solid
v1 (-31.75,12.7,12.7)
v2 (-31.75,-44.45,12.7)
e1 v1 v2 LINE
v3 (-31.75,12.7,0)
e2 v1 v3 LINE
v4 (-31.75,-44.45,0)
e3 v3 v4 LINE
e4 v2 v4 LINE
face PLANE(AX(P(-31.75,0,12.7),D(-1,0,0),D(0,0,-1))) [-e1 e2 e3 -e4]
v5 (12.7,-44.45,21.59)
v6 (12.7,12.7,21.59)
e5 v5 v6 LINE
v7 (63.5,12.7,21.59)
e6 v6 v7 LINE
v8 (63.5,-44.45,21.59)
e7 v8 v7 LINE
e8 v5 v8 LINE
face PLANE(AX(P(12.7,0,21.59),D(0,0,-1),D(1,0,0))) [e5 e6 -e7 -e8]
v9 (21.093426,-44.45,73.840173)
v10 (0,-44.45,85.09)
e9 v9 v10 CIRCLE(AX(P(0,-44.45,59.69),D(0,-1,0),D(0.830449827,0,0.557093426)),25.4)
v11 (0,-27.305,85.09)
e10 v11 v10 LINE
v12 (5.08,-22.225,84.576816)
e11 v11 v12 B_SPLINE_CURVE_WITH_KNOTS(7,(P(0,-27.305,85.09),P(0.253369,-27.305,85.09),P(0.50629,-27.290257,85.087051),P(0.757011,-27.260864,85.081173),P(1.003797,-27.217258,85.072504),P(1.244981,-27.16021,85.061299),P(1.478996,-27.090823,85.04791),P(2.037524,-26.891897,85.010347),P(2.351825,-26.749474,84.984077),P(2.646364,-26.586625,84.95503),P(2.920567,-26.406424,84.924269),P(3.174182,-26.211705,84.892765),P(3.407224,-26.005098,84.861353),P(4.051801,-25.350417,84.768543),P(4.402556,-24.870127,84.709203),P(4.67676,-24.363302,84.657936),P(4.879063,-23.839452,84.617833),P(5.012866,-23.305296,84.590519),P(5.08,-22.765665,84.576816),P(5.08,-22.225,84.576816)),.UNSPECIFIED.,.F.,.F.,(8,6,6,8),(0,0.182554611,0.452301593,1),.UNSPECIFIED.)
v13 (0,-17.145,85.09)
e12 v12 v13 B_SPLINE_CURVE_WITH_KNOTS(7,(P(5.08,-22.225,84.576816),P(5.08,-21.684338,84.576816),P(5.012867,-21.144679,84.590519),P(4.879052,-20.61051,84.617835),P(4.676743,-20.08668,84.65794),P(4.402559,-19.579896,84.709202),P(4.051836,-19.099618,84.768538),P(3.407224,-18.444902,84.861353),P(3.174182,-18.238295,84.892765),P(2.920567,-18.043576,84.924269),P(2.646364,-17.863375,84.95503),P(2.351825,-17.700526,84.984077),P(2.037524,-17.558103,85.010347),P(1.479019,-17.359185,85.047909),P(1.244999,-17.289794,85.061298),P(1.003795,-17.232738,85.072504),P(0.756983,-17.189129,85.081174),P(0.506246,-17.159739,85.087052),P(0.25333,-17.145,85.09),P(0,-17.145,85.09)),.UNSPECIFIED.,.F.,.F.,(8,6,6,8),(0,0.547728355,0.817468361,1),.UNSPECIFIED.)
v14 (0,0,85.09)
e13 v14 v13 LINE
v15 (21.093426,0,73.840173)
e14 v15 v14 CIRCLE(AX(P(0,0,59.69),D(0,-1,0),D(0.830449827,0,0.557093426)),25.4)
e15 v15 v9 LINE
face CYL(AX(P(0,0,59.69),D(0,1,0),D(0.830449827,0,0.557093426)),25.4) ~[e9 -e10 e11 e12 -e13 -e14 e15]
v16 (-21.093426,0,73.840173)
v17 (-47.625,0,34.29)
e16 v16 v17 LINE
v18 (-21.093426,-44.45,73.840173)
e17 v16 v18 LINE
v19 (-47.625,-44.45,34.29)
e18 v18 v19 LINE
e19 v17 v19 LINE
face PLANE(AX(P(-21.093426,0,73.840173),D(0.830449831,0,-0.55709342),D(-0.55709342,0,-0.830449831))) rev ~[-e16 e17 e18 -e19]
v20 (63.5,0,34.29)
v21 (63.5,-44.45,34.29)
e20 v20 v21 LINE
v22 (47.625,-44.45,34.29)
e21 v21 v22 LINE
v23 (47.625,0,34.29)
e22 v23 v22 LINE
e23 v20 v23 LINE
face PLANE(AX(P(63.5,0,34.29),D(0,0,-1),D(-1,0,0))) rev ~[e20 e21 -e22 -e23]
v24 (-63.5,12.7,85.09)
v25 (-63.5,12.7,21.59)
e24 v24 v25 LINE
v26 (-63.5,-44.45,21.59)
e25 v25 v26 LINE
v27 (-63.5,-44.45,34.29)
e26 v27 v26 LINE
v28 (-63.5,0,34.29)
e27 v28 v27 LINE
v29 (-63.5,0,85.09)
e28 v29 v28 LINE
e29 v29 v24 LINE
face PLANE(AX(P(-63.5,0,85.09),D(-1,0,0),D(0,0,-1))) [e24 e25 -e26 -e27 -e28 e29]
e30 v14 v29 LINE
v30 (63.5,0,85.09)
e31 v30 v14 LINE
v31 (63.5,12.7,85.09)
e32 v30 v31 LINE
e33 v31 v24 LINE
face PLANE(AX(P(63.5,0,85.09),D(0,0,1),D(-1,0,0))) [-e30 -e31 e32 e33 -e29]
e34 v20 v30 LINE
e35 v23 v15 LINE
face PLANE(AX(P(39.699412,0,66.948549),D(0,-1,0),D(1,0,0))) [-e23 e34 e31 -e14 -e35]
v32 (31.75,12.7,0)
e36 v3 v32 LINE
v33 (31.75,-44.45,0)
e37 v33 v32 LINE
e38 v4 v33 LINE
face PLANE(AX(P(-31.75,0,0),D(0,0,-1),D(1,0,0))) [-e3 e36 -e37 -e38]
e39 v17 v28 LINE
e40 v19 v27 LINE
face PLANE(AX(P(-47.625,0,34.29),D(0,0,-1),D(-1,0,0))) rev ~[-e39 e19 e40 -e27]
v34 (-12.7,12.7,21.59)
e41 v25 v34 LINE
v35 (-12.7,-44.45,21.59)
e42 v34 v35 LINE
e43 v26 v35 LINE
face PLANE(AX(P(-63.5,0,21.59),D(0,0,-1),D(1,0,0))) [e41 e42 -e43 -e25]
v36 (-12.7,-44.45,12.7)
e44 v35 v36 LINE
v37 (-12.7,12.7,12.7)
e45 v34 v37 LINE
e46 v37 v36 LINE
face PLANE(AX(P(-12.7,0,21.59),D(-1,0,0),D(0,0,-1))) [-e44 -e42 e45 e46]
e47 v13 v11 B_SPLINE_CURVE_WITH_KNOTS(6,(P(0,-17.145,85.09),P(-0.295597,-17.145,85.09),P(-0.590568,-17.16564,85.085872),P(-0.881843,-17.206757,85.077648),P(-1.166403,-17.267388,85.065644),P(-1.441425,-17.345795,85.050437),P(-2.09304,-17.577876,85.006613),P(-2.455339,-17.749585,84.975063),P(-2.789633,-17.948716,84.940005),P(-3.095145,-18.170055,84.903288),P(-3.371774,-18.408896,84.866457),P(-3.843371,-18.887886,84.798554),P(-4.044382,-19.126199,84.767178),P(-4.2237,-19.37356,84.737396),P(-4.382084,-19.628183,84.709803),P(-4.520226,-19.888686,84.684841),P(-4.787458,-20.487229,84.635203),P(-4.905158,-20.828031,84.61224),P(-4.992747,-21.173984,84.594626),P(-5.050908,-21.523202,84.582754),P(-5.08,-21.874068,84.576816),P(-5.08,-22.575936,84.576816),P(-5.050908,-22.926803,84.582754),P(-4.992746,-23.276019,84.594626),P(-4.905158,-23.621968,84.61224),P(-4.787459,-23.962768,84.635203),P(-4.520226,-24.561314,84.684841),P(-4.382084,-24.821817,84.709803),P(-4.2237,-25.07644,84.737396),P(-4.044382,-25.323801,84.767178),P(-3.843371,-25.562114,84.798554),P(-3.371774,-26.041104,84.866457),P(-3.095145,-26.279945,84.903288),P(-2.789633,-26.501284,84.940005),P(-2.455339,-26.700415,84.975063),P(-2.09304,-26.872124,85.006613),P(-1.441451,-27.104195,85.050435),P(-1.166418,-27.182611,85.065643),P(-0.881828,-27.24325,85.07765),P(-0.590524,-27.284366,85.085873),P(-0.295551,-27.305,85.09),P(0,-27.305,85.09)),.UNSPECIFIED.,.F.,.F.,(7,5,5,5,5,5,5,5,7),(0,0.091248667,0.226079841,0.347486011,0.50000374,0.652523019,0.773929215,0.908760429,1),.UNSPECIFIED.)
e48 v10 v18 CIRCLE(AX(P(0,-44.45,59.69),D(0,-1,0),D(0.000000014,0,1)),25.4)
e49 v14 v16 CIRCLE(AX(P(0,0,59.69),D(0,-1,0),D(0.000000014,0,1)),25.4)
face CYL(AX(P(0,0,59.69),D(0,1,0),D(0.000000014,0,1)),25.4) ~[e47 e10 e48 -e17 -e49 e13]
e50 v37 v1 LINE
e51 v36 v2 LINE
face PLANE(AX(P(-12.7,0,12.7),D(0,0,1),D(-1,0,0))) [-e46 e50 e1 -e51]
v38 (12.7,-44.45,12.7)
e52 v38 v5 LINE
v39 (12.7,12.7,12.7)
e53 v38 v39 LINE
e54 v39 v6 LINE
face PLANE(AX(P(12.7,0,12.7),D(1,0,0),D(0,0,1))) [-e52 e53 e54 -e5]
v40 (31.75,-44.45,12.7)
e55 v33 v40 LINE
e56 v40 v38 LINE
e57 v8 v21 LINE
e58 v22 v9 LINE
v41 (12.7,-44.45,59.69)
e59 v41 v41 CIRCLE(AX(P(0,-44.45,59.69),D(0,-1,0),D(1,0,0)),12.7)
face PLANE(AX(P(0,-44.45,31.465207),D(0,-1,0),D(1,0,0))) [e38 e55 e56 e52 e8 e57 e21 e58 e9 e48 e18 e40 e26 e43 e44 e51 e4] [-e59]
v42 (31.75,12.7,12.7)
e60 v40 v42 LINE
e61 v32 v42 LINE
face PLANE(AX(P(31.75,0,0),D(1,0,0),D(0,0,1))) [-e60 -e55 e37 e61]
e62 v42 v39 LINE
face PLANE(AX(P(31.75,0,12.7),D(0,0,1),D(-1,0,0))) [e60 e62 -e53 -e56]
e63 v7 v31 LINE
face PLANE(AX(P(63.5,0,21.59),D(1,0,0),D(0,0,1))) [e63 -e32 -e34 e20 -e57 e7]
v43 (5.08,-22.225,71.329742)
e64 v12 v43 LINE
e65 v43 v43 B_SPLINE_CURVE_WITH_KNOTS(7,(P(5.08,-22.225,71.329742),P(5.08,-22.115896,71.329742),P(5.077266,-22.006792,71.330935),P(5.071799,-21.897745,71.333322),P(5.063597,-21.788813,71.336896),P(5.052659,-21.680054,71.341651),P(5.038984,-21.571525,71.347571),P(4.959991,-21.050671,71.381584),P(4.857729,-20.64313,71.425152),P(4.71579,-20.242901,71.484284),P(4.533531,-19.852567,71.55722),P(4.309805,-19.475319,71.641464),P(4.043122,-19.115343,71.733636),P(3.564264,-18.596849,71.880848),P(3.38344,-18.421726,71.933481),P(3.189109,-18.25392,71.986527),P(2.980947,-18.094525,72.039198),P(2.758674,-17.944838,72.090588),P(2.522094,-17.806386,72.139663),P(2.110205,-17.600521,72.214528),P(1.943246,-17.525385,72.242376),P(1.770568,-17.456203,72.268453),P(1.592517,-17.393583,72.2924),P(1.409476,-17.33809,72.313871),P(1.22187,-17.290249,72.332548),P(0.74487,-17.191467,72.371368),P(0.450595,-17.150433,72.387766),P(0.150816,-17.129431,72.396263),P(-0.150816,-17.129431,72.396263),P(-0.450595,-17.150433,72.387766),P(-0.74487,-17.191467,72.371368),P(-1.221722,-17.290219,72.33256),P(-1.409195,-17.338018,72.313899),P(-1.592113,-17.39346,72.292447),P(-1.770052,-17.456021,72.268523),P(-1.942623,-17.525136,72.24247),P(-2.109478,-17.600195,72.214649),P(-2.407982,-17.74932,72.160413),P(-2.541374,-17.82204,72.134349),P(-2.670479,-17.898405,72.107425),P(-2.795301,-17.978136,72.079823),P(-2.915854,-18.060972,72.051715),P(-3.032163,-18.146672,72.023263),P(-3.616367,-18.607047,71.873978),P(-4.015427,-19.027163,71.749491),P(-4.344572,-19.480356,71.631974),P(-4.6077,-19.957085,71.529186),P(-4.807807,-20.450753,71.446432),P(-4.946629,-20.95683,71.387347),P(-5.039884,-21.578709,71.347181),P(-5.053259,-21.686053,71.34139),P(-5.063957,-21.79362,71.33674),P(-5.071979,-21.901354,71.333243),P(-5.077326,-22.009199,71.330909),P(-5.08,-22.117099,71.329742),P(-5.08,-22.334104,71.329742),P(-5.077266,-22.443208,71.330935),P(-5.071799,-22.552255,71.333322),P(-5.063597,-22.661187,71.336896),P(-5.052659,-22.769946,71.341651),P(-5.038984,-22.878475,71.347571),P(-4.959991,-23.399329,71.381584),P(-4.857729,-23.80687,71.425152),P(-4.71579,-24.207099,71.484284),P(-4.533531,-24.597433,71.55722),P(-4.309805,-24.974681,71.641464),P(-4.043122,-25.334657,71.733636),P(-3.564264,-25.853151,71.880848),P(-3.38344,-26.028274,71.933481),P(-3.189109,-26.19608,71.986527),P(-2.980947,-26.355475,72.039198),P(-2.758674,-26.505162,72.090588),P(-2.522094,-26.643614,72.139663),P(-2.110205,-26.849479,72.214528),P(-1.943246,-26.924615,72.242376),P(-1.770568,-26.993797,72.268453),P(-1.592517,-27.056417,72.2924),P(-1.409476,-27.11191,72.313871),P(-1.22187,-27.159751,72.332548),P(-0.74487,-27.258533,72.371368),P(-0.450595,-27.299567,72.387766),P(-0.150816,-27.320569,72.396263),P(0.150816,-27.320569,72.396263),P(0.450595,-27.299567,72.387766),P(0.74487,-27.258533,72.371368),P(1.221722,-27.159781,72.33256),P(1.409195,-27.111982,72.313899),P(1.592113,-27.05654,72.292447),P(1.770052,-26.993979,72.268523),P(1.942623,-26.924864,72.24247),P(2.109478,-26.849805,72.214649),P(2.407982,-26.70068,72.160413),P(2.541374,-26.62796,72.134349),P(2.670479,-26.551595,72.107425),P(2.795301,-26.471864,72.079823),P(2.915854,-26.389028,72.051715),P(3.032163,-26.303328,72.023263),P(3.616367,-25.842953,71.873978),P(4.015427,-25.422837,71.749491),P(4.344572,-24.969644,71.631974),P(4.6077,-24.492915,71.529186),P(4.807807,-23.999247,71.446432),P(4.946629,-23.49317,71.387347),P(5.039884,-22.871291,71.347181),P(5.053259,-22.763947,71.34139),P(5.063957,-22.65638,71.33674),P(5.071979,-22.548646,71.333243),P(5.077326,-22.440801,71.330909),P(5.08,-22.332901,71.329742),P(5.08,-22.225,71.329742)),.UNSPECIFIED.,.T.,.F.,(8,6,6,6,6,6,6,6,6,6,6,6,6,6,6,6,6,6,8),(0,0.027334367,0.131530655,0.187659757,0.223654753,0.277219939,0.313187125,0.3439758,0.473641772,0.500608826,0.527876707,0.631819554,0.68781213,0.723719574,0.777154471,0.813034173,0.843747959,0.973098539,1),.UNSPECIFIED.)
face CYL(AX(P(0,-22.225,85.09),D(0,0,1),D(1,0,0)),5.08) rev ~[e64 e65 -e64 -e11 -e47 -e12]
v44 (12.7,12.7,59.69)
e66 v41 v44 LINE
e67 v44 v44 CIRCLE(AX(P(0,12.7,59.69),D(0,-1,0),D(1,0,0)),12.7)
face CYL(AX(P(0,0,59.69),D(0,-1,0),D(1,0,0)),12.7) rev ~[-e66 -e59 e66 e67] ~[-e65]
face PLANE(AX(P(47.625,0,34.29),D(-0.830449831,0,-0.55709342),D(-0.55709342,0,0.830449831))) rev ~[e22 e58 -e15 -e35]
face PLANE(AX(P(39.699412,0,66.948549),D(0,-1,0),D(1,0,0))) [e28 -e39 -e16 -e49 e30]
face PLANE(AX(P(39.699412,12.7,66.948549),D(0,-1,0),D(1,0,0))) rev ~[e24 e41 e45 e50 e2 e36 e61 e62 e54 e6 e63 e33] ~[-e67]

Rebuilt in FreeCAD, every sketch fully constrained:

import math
import FreeCAD as App
import Part
import Sketcher
from FreeCAD import Vector
Q = App.Units.Quantity

doc = App.newDocument("Part")
body = doc.addObject("PartDesign::Body", "Body")

# Sketch on XZ plane
sketch1 = body.newObject("Sketcher::SketchObject", "Sketch")
sketch1.AttachmentSupport = (doc.getObject("XZ_Plane"), [""])
sketch1.MapMode = "FlatFace"
sketch1.addGeometry([
    Part.LineSegment(Vector(-32, 13, 0), Vector(-32, 0, 0)),  # 0
    Part.LineSegment(Vector(-32, 0, 0), Vector(32, 0, 0)),  # 1
    Part.LineSegment(Vector(32, 0, 0), Vector(32, 13, 0)),  # 2
    Part.LineSegment(Vector(32, 13, 0), Vector(13, 13, 0)),  # 3
    Part.LineSegment(Vector(13, 13, 0), Vector(13, 22, 0)),  # 4
    Part.LineSegment(Vector(13, 22, 0), Vector(64, 22, 0)),  # 5
    Part.LineSegment(Vector(64, 22, 0), Vector(64, 34, 0)),  # 6
    Part.LineSegment(Vector(64, 34, 0), Vector(48, 34, 0)),  # 7
    Part.LineSegment(Vector(48, 34, 0), Vector(21, 74, 0)),  # 8
    Part.ArcOfCircle(Part.Circle(Vector(0, 60, 0), Vector(0, 0, 1), 25), math.radians(34), math.radians(90)),  # 9
    Part.ArcOfCircle(Part.Circle(Vector(0, 60, 0), Vector(0, 0, 1), 25), math.radians(90), math.radians(146)),  # 10
    Part.LineSegment(Vector(-21, 74, 0), Vector(-48, 34, 0)),  # 11
    Part.LineSegment(Vector(-48, 34, 0), Vector(-64, 34, 0)),  # 12
    Part.LineSegment(Vector(-64, 34, 0), Vector(-64, 22, 0)),  # 13
    Part.LineSegment(Vector(-64, 22, 0), Vector(-13, 22, 0)),  # 14
    Part.LineSegment(Vector(-13, 22, 0), Vector(-13, 13, 0)),  # 15
    Part.LineSegment(Vector(-13, 13, 0), Vector(-32, 13, 0)),  # 16
    Part.Circle(Vector(0, 60, 0), Vector(0, 0, 1), 13),  # 17
], False)
sketch1.addConstraint([
    Sketcher.Constraint("Coincident", 0, 2, 1, 1),
    Sketcher.Constraint("Coincident", 1, 2, 2, 1),
    Sketcher.Constraint("Coincident", 2, 2, 3, 1),
    Sketcher.Constraint("Coincident", 3, 2, 4, 1),
    Sketcher.Constraint("Coincident", 4, 2, 5, 1),
    Sketcher.Constraint("Coincident", 5, 2, 6, 1),
    Sketcher.Constraint("Coincident", 6, 2, 7, 1),
    Sketcher.Constraint("Coincident", 7, 2, 8, 1),
    Sketcher.Constraint("Tangent", 8, 2, 9, 1),
    Sketcher.Constraint("Tangent", 9, 2, 10, 1),
    Sketcher.Constraint("Tangent", 10, 2, 11, 1),
    Sketcher.Constraint("Coincident", 11, 2, 12, 1),
    Sketcher.Constraint("Coincident", 12, 2, 13, 1),
    Sketcher.Constraint("Coincident", 13, 2, 14, 1),
    Sketcher.Constraint("Coincident", 14, 2, 15, 1),
    Sketcher.Constraint("Coincident", 15, 2, 16, 1),
    Sketcher.Constraint("Coincident", 16, 2, 0, 1),
    Sketcher.Constraint("Vertical", 0),
    Sketcher.Constraint("Horizontal", 1),
    Sketcher.Constraint("Vertical", 2),
    Sketcher.Constraint("Horizontal", 3),
    Sketcher.Constraint("Vertical", 4),
    Sketcher.Constraint("Horizontal", 5),
    Sketcher.Constraint("Vertical", 6),
    Sketcher.Constraint("Horizontal", 7),
    Sketcher.Constraint("Horizontal", 12),
    Sketcher.Constraint("Vertical", 13),
    Sketcher.Constraint("Horizontal", 14),
    Sketcher.Constraint("Vertical", 15),
    Sketcher.Constraint("Horizontal", 16),
    Sketcher.Constraint("Coincident", 17, 3, 9, 3),
    Sketcher.Constraint("Equal", 9, 10),
    Sketcher.Constraint("Symmetric", 0, 2, 1, 2, -1, 1),
    Sketcher.Constraint("Symmetric", 8, 2, 10, 2, -2),
    Sketcher.Constraint("Symmetric", 6, 2, 12, 2, -2),
    Sketcher.Constraint("Symmetric", 4, 2, 14, 2, -2),
    Sketcher.Constraint("PointOnObject", 9, 2, -2),
    Sketcher.Constraint("Horizontal", 3, 2, 15, 2),
    Sketcher.Constraint("Equal", 2, 6),
    Sketcher.Constraint("Diameter", 17, Q("1 in")),
    Sketcher.Constraint("Radius", 9, Q("1 in")),
    Sketcher.Constraint("DistanceX", 5, 1, 5, 2, Q("2 in")),
    Sketcher.Constraint("DistanceX", 1, 1, 1, 2, Q("2.5 in")),
    Sketcher.Constraint("DistanceY", 0, 2, 0, 1, Q("0.5 in")),
    Sketcher.Constraint("DistanceY", 11, 2, 10, 3, Q("1 in")),
    Sketcher.Constraint("DistanceX", 14, 2, 4, 2, Q("1 in")),
    Sketcher.Constraint("DistanceY", 4, 1, 4, 2, Q("0.35 in")),
    Sketcher.Constraint("DistanceX", 7, 2, 7, 1, Q("0.625 in")),
])
pad1 = body.newObject("PartDesign::Pad", "Pad")
pad1.Profile = sketch1
pad1.Length = Q("1.75 in")

# Sketch on XZ plane
sketch2 = body.newObject("Sketcher::SketchObject", "Sketch001")
sketch2.AttachmentSupport = (doc.getObject("XZ_Plane"), [""])
sketch2.MapMode = "FlatFace"
sketch2.addGeometry([
    Part.LineSegment(Vector(64, 85, 0), Vector(-64, 85, 0)),  # 0
    Part.LineSegment(Vector(-64, 85, 0), Vector(-64, 22, 0)),  # 1
    Part.LineSegment(Vector(-64, 22, 0), Vector(-13, 22, 0)),  # 2
    Part.LineSegment(Vector(-13, 22, 0), Vector(-13, 13, 0)),  # 3
    Part.LineSegment(Vector(-13, 13, 0), Vector(-32, 13, 0)),  # 4
    Part.LineSegment(Vector(-32, 13, 0), Vector(-32, 0, 0)),  # 5
    Part.LineSegment(Vector(-32, 0, 0), Vector(32, 0, 0)),  # 6
    Part.LineSegment(Vector(32, 0, 0), Vector(32, 13, 0)),  # 7
    Part.LineSegment(Vector(32, 13, 0), Vector(13, 13, 0)),  # 8
    Part.LineSegment(Vector(13, 13, 0), Vector(13, 22, 0)),  # 9
    Part.LineSegment(Vector(13, 22, 0), Vector(64, 22, 0)),  # 10
    Part.LineSegment(Vector(64, 22, 0), Vector(64, 85, 0)),  # 11
    Part.Circle(Vector(0, 60, 0), Vector(0, 0, 1), 13),  # 12
], False)
sketch2.addConstraint([
    Sketcher.Constraint("Coincident", 0, 2, 1, 1),
    Sketcher.Constraint("Coincident", 1, 2, 2, 1),
    Sketcher.Constraint("Coincident", 2, 2, 3, 1),
    Sketcher.Constraint("Coincident", 3, 2, 4, 1),
    Sketcher.Constraint("Coincident", 4, 2, 5, 1),
    Sketcher.Constraint("Coincident", 5, 2, 6, 1),
    Sketcher.Constraint("Coincident", 6, 2, 7, 1),
    Sketcher.Constraint("Coincident", 7, 2, 8, 1),
    Sketcher.Constraint("Coincident", 8, 2, 9, 1),
    Sketcher.Constraint("Coincident", 9, 2, 10, 1),
    Sketcher.Constraint("Coincident", 10, 2, 11, 1),
    Sketcher.Constraint("Coincident", 11, 2, 0, 1),
    Sketcher.Constraint("Horizontal", 0),
    Sketcher.Constraint("Vertical", 1),
    Sketcher.Constraint("Horizontal", 2),
    Sketcher.Constraint("Vertical", 3),
    Sketcher.Constraint("Horizontal", 4),
    Sketcher.Constraint("Vertical", 5),
    Sketcher.Constraint("Horizontal", 6),
    Sketcher.Constraint("Vertical", 7),
    Sketcher.Constraint("Horizontal", 8),
    Sketcher.Constraint("Vertical", 9),
    Sketcher.Constraint("Horizontal", 10),
    Sketcher.Constraint("Vertical", 11),
    Sketcher.Constraint("Symmetric", 5, 2, 6, 2, -1, 1),
    Sketcher.Constraint("Symmetric", 3, 2, 8, 2, -2),
    Sketcher.Constraint("Symmetric", 1, 2, 10, 2, -2),
    Sketcher.Constraint("PointOnObject", 12, 3, -2),
    Sketcher.Constraint("Equal", 6, 1),
    Sketcher.Constraint("Diameter", 12, Q("1 in")),
    Sketcher.Constraint("DistanceX", 0, 2, 0, 1, Q("5 in")),
    Sketcher.Constraint("DistanceX", 2, 1, 2, 2, Q("2 in")),
    Sketcher.Constraint("DistanceX", 6, 1, 6, 2, Q("2.5 in")),
    Sketcher.Constraint("DistanceY", 5, 2, 5, 1, Q("0.5 in")),
    Sketcher.Constraint("DistanceY", 12, 3, 0, 2, Q("1 in")),
    Sketcher.Constraint("DistanceY", 3, 2, 3, 1, Q("0.35 in")),
])
pad2 = body.newObject("PartDesign::Pad", "Pad001")
pad2.Profile = sketch2
pad2.Length = Q("0.5 in")
pad2.Reversed = True

# Sketch on XY plane
sketch3 = body.newObject("Sketcher::SketchObject", "Sketch002")
sketch3.AttachmentSupport = (doc.getObject("XY_Plane"), [""])
sketch3.MapMode = "FlatFace"
sketch3.AttachmentOffset = App.Placement(Vector(0, 0, 3.35 * 25.4), App.Rotation())
sketch3.addGeometry(Part.Circle(Vector(0, -22, 0), Vector(0, 0, 1), 5), False)
sketch3.addConstraint([
    Sketcher.Constraint("PointOnObject", 0, 3, -2),
    Sketcher.Constraint("Diameter", 0, Q("0.4 in")),
    Sketcher.Constraint("DistanceY", 0, 3, -1, 1, Q("0.875 in")),
])
pocket1 = body.newObject("PartDesign::Pocket", "Pocket")
pocket1.Profile = sketch3
pocket1.Length = Q("1 in")

doc.recompute()
